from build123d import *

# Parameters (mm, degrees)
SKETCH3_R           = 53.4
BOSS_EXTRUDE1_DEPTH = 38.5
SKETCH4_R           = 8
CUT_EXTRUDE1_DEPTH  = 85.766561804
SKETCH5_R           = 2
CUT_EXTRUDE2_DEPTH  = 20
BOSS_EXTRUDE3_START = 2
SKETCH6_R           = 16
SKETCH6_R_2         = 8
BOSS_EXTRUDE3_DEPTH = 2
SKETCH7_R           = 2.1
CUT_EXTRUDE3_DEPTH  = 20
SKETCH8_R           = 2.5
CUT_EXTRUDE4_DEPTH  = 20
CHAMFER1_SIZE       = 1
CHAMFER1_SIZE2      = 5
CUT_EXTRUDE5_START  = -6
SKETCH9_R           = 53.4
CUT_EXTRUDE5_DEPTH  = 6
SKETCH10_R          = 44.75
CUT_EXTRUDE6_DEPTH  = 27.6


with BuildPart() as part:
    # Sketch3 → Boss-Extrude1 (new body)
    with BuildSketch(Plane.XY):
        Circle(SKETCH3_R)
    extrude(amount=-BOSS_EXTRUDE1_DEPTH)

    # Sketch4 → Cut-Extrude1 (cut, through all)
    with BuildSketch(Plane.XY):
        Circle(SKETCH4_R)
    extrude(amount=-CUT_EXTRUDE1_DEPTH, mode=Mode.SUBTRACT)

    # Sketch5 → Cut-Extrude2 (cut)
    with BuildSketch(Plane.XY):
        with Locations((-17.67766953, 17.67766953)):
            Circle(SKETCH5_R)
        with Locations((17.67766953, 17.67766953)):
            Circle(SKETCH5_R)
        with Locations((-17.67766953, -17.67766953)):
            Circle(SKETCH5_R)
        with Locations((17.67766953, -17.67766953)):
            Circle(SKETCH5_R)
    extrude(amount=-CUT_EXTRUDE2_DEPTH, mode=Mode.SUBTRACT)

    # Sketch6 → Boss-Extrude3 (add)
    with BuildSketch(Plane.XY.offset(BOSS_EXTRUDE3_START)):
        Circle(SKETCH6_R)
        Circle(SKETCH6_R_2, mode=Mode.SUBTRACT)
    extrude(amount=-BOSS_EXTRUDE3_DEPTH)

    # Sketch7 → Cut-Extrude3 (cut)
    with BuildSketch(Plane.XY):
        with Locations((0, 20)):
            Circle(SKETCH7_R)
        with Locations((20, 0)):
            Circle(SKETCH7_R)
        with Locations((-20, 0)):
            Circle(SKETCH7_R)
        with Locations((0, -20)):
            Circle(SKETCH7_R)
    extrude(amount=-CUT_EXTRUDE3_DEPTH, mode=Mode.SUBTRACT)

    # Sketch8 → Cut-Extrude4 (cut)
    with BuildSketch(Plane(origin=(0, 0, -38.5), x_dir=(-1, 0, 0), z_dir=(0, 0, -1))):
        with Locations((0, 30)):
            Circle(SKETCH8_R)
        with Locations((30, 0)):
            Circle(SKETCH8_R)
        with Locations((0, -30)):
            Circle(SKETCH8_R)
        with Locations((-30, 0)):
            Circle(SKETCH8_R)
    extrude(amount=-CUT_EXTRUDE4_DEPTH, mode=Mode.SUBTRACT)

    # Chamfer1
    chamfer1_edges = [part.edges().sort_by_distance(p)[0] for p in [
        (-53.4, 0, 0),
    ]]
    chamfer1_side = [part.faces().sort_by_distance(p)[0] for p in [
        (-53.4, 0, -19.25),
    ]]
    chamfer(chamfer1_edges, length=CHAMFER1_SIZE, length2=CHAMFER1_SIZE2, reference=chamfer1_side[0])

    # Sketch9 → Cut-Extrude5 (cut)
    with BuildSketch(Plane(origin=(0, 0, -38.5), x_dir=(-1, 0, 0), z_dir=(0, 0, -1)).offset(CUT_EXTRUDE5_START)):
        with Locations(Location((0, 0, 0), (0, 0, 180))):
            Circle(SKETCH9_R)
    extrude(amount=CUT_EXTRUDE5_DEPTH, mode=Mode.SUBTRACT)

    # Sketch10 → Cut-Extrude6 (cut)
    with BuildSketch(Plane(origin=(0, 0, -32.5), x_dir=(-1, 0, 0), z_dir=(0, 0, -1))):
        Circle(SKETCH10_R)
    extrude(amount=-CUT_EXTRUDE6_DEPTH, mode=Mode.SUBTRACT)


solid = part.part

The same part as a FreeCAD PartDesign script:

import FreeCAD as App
import Part
import Sketcher

V = App.Vector


def edges_at(feature, points):
    """Names of the edges that pass closest to the given points."""
    edges = feature.Shape.Edges
    near = lambda p: min(range(len(edges)), key=lambda i: edges[i].distToShape(Part.Vertex(*p))[0])
    return sorted({f"Edge{near(p) + 1}" for p in points})

doc = App.newDocument("Part")
params = doc.addObject("Spreadsheet::Sheet", "Params")
for row, (alias, value) in enumerate([
    ("sketch1_diameter", "106.8 mm"),
    ("pad1_length", "38.5 mm"),
    ("sketch2_diameter", "16 mm"),
    ("sketch3_diameter", "4 mm"),
    ("pocket2_length", "20 mm"),
    ("sketch4_diameter", "32 mm"),
    ("sketch4_diameter2", "16 mm"),
    ("pad2_length", "2 mm"),
    ("sketch5_diameter", "4.2 mm"),
    ("pocket3_length", "20 mm"),
    ("sketch6_diameter", "5 mm"),
    ("pocket4_length", "20 mm"),
    ("chamfer_size", "1 mm"),
    ("chamfer_size2", "5 mm"),
    ("sketch7_diameter", "106.8 mm"),
    ("pocket5_length", "6 mm"),
    ("sketch8_diameter", "89.5 mm"),
    ("pocket6_length", "27.6 mm"),
], start=1):
    params.set(f"A{row}", alias)
    params.set(f"B{row}", "=" + value)
    params.setAlias(f"B{row}", alias)

body = doc.addObject("PartDesign::Body", "Body")

# Sketch on XY plane
sketch1 = body.newObject("Sketcher::SketchObject", "Sketch")
sketch1.AttachmentSupport = (doc.getObject("XY_Plane"), [""])
sketch1.MapMode = "FlatFace"
sketch1.addGeometry(Part.Circle(V(0, 0, 0), V(0, 0, 1), 53), False)
sketch1.addConstraint([
    Sketcher.Constraint("Coincident", 0, 3, -1, 1),
    Sketcher.Constraint("Diameter", 0, 106.8),
])
sketch1.setExpression("Constraints[1]", "Params.sketch1_diameter")
pad1 = body.newObject("PartDesign::Pad", "Pad")
pad1.Profile = sketch1
pad1.setExpression("Length", "Params.pad1_length")
pad1.Reversed = True

# Sketch on XY plane
sketch2 = body.newObject("Sketcher::SketchObject", "Sketch001")
sketch2.AttachmentSupport = (doc.getObject("XY_Plane"), [""])
sketch2.MapMode = "FlatFace"
sketch2.addGeometry(Part.Circle(V(0, 0, 0), V(0, 0, 1), 8), False)
sketch2.addConstraint([
    Sketcher.Constraint("Coincident", 0, 3, -1, 1),
    Sketcher.Constraint("Diameter", 0, 16.0),
])
sketch2.setExpression("Constraints[1]", "Params.sketch2_diameter")
pocket1 = body.newObject("PartDesign::Pocket", "Pocket")
pocket1.Profile = sketch2
pocket1.Type = "ThroughAll"

# Sketch on XY plane
sketch3 = body.newObject("Sketcher::SketchObject", "Sketch002")
sketch3.AttachmentSupport = (doc.getObject("XY_Plane"), [""])
sketch3.MapMode = "FlatFace"
sketch3.addGeometry([
    Part.Circle(V(-17.7, 17.7, 0), V(0, 0, 1), 2),
    Part.Circle(V(17.7, 17.7, 0), V(0, 0, 1), 2),
    Part.Circle(V(-17.7, -17.7, 0), V(0, 0, 1), 2),
    Part.Circle(V(17.7, -17.7, 0), V(0, 0, 1), 2),
], False)
sketch3.addConstraint([
    Sketcher.Constraint("Equal", 0, 1),
    Sketcher.Constraint("Equal", 1, 2),
    Sketcher.Constraint("Equal", 2, 3),
    Sketcher.Constraint("Symmetric", 1, 3, 2, 3, -1, 1),
    Sketcher.Constraint("Symmetric", 0, 3, 3, 3, -1, 1),
    Sketcher.Constraint("Symmetric", 0, 3, 1, 3, -2),
    Sketcher.Constraint("Diameter", 0, 4.0),
    Sketcher.Constraint("DistanceX", 0, 3, -1, 1, 17.67767),
    Sketcher.Constraint("DistanceY", -1, 1, 0, 3, 17.67767),
])
sketch3.setExpression("Constraints[6]", "Params.sketch3_diameter")
pocket2 = body.newObject("PartDesign::Pocket", "Pocket001")
pocket2.Profile = sketch3
pocket2.setExpression("Length", "Params.pocket2_length")

# Sketch on XY plane
sketch4 = body.newObject("Sketcher::SketchObject", "Sketch003")
sketch4.AttachmentSupport = (doc.getObject("XY_Plane"), [""])
sketch4.MapMode = "FlatFace"
sketch4.AttachmentOffset = App.Placement(V(0, 0, 2), App.Rotation())
sketch4.addGeometry([
    Part.Circle(V(0, 0, 0), V(0, 0, 1), 16),
    Part.Circle(V(0, 0, 0), V(0, 0, 1), 8),
], False)
sketch4.addConstraint([
    Sketcher.Constraint("Coincident", 0, 3, -1, 1),
    Sketcher.Constraint("Coincident", 1, 3, -1, 1),
    Sketcher.Constraint("Diameter", 0, 32.0),
    Sketcher.Constraint("Diameter", 1, 16.0),
])
sketch4.setExpression("Constraints[2]", "Params.sketch4_diameter")
sketch4.setExpression("Constraints[3]", "Params.sketch4_diameter2")
pad2 = body.newObject("PartDesign::Pad", "Pad001")
pad2.Profile = sketch4
pad2.setExpression("Length", "Params.pad2_length")
pad2.Reversed = True

# Sketch on XY plane
sketch5 = body.newObject("Sketcher::SketchObject", "Sketch004")
sketch5.AttachmentSupport = (doc.getObject("XY_Plane"), [""])
sketch5.MapMode = "FlatFace"
sketch5.addGeometry([
    Part.Circle(V(0, 20, 0), V(0, 0, 1), 2.1),
    Part.Circle(V(20, 0, 0), V(0, 0, 1), 2.1),
    Part.Circle(V(-20, 0, 0), V(0, 0, 1), 2.1),
    Part.Circle(V(0, -20, 0), V(0, 0, 1), 2.1),
], False)
sketch5.addConstraint([
    Sketcher.Constraint("Equal", 0, 1),
    Sketcher.Constraint("Equal", 1, 2),
    Sketcher.Constraint("Equal", 2, 3),
    Sketcher.Constraint("Symmetric", 1, 3, 2, 3, -1, 1),
    Sketcher.Constraint("Symmetric", 0, 3, 3, 3, -1, 1),
    Sketcher.Constraint("PointOnObject", 0, 3, -2),
    Sketcher.Constraint("PointOnObject", 1, 3, -1),
    Sketcher.Constraint("Diameter", 0, 4.2),
    Sketcher.Constraint("DistanceY", -1, 1, 0, 3, 20.0),
    Sketcher.Constraint("DistanceX", -1, 1, 1, 3, 20.0),
])
sketch5.setExpression("Constraints[7]", "Params.sketch5_diameter")
pocket3 = body.newObject("PartDesign::Pocket", "Pocket002")
pocket3.Profile = sketch5
pocket3.setExpression("Length", "Params.pocket3_length")

# Sketch on XY plane
sketch6 = body.newObject("Sketcher::SketchObject", "Sketch005")
sketch6.AttachmentSupport = (doc.getObject("XY_Plane"), [""])
sketch6.MapMode = "FlatFace"
sketch6.AttachmentOffset = App.Placement(V(0, 0, -38.5), App.Rotation())
sketch6.addGeometry([
    Part.Circle(V(0, 30, 0), V(0, 0, 1), 2.5),
    Part.Circle(V(-30, 0, 0), V(0, 0, 1), 2.5),
    Part.Circle(V(0, -30, 0), V(0, 0, 1), 2.5),
    Part.Circle(V(30, 0, 0), V(0, 0, 1), 2.5),
], False)
sketch6.addConstraint([
    Sketcher.Constraint("Equal", 0, 1),
    Sketcher.Constraint("Equal", 1, 2),
    Sketcher.Constraint("Equal", 2, 3),
    Sketcher.Constraint("Symmetric", 0, 3, 2, 3, -1, 1),
    Sketcher.Constraint("Symmetric", 1, 3, 3, 3, -1, 1),
    Sketcher.Constraint("PointOnObject", 0, 3, -2),
    Sketcher.Constraint("PointOnObject", 1, 3, -1),
    Sketcher.Constraint("Diameter", 0, 5.0),
    Sketcher.Constraint("DistanceY", -1, 1, 0, 3, 30.0),
    Sketcher.Constraint("DistanceX", 1, 3, -1, 1, 30.0),
])
sketch6.setExpression("Constraints[7]", "Params.sketch6_diameter")
pocket4 = body.newObject("PartDesign::Pocket", "Pocket003")
pocket4.Profile = sketch6
pocket4.setExpression("Length", "Params.pocket4_length")
pocket4.Reversed = True
doc.recompute()

chamfer = body.newObject("PartDesign::Chamfer", "Chamfer")
chamfer.Base = (pocket4, edges_at(pocket4, [(-53.4, 0, 0)]))
chamfer.ChamferType = "Two distances"
chamfer.setExpression("Size", "Params.chamfer_size")
chamfer.setExpression("Size2", "Params.chamfer_size2")

# Sketch on XY plane
sketch7 = body.newObject("Sketcher::SketchObject", "Sketch006")
sketch7.AttachmentSupport = (doc.getObject("XY_Plane"), [""])
sketch7.MapMode = "FlatFace"
sketch7.AttachmentOffset = App.Placement(V(0, 0, -32.5), App.Rotation())
sketch7.addGeometry(Part.Circle(V(0, 0, 0), V(0, 0, 1), 53), False)
sketch7.addConstraint([
    Sketcher.Constraint("Coincident", 0, 3, -1, 1),
    Sketcher.Constraint("Diameter", 0, 106.8),
])
sketch7.setExpression("Constraints[1]", "Params.sketch7_diameter")
pocket5 = body.newObject("PartDesign::Pocket", "Pocket004")
pocket5.Profile = sketch7
pocket5.setExpression("Length", "Params.pocket5_length")

# Sketch on XY plane
sketch8 = body.newObject("Sketcher::SketchObject", "Sketch007")
sketch8.AttachmentSupport = (doc.getObject("XY_Plane"), [""])
sketch8.MapMode = "FlatFace"
sketch8.AttachmentOffset = App.Placement(V(0, 0, -32.5), App.Rotation())
sketch8.addGeometry(Part.Circle(V(0, 0, 0), V(0, 0, 1), 45), False)
sketch8.addConstraint([
    Sketcher.Constraint("Coincident", 0, 3, -1, 1),
    Sketcher.Constraint("Diameter", 0, 89.5),
])
sketch8.setExpression("Constraints[1]", "Params.sketch8_diameter")
pocket6 = body.newObject("PartDesign::Pocket", "Pocket005")
pocket6.Profile = sketch8
pocket6.setExpression("Length", "Params.pocket6_length")
pocket6.Reversed = True

doc.recompute()
